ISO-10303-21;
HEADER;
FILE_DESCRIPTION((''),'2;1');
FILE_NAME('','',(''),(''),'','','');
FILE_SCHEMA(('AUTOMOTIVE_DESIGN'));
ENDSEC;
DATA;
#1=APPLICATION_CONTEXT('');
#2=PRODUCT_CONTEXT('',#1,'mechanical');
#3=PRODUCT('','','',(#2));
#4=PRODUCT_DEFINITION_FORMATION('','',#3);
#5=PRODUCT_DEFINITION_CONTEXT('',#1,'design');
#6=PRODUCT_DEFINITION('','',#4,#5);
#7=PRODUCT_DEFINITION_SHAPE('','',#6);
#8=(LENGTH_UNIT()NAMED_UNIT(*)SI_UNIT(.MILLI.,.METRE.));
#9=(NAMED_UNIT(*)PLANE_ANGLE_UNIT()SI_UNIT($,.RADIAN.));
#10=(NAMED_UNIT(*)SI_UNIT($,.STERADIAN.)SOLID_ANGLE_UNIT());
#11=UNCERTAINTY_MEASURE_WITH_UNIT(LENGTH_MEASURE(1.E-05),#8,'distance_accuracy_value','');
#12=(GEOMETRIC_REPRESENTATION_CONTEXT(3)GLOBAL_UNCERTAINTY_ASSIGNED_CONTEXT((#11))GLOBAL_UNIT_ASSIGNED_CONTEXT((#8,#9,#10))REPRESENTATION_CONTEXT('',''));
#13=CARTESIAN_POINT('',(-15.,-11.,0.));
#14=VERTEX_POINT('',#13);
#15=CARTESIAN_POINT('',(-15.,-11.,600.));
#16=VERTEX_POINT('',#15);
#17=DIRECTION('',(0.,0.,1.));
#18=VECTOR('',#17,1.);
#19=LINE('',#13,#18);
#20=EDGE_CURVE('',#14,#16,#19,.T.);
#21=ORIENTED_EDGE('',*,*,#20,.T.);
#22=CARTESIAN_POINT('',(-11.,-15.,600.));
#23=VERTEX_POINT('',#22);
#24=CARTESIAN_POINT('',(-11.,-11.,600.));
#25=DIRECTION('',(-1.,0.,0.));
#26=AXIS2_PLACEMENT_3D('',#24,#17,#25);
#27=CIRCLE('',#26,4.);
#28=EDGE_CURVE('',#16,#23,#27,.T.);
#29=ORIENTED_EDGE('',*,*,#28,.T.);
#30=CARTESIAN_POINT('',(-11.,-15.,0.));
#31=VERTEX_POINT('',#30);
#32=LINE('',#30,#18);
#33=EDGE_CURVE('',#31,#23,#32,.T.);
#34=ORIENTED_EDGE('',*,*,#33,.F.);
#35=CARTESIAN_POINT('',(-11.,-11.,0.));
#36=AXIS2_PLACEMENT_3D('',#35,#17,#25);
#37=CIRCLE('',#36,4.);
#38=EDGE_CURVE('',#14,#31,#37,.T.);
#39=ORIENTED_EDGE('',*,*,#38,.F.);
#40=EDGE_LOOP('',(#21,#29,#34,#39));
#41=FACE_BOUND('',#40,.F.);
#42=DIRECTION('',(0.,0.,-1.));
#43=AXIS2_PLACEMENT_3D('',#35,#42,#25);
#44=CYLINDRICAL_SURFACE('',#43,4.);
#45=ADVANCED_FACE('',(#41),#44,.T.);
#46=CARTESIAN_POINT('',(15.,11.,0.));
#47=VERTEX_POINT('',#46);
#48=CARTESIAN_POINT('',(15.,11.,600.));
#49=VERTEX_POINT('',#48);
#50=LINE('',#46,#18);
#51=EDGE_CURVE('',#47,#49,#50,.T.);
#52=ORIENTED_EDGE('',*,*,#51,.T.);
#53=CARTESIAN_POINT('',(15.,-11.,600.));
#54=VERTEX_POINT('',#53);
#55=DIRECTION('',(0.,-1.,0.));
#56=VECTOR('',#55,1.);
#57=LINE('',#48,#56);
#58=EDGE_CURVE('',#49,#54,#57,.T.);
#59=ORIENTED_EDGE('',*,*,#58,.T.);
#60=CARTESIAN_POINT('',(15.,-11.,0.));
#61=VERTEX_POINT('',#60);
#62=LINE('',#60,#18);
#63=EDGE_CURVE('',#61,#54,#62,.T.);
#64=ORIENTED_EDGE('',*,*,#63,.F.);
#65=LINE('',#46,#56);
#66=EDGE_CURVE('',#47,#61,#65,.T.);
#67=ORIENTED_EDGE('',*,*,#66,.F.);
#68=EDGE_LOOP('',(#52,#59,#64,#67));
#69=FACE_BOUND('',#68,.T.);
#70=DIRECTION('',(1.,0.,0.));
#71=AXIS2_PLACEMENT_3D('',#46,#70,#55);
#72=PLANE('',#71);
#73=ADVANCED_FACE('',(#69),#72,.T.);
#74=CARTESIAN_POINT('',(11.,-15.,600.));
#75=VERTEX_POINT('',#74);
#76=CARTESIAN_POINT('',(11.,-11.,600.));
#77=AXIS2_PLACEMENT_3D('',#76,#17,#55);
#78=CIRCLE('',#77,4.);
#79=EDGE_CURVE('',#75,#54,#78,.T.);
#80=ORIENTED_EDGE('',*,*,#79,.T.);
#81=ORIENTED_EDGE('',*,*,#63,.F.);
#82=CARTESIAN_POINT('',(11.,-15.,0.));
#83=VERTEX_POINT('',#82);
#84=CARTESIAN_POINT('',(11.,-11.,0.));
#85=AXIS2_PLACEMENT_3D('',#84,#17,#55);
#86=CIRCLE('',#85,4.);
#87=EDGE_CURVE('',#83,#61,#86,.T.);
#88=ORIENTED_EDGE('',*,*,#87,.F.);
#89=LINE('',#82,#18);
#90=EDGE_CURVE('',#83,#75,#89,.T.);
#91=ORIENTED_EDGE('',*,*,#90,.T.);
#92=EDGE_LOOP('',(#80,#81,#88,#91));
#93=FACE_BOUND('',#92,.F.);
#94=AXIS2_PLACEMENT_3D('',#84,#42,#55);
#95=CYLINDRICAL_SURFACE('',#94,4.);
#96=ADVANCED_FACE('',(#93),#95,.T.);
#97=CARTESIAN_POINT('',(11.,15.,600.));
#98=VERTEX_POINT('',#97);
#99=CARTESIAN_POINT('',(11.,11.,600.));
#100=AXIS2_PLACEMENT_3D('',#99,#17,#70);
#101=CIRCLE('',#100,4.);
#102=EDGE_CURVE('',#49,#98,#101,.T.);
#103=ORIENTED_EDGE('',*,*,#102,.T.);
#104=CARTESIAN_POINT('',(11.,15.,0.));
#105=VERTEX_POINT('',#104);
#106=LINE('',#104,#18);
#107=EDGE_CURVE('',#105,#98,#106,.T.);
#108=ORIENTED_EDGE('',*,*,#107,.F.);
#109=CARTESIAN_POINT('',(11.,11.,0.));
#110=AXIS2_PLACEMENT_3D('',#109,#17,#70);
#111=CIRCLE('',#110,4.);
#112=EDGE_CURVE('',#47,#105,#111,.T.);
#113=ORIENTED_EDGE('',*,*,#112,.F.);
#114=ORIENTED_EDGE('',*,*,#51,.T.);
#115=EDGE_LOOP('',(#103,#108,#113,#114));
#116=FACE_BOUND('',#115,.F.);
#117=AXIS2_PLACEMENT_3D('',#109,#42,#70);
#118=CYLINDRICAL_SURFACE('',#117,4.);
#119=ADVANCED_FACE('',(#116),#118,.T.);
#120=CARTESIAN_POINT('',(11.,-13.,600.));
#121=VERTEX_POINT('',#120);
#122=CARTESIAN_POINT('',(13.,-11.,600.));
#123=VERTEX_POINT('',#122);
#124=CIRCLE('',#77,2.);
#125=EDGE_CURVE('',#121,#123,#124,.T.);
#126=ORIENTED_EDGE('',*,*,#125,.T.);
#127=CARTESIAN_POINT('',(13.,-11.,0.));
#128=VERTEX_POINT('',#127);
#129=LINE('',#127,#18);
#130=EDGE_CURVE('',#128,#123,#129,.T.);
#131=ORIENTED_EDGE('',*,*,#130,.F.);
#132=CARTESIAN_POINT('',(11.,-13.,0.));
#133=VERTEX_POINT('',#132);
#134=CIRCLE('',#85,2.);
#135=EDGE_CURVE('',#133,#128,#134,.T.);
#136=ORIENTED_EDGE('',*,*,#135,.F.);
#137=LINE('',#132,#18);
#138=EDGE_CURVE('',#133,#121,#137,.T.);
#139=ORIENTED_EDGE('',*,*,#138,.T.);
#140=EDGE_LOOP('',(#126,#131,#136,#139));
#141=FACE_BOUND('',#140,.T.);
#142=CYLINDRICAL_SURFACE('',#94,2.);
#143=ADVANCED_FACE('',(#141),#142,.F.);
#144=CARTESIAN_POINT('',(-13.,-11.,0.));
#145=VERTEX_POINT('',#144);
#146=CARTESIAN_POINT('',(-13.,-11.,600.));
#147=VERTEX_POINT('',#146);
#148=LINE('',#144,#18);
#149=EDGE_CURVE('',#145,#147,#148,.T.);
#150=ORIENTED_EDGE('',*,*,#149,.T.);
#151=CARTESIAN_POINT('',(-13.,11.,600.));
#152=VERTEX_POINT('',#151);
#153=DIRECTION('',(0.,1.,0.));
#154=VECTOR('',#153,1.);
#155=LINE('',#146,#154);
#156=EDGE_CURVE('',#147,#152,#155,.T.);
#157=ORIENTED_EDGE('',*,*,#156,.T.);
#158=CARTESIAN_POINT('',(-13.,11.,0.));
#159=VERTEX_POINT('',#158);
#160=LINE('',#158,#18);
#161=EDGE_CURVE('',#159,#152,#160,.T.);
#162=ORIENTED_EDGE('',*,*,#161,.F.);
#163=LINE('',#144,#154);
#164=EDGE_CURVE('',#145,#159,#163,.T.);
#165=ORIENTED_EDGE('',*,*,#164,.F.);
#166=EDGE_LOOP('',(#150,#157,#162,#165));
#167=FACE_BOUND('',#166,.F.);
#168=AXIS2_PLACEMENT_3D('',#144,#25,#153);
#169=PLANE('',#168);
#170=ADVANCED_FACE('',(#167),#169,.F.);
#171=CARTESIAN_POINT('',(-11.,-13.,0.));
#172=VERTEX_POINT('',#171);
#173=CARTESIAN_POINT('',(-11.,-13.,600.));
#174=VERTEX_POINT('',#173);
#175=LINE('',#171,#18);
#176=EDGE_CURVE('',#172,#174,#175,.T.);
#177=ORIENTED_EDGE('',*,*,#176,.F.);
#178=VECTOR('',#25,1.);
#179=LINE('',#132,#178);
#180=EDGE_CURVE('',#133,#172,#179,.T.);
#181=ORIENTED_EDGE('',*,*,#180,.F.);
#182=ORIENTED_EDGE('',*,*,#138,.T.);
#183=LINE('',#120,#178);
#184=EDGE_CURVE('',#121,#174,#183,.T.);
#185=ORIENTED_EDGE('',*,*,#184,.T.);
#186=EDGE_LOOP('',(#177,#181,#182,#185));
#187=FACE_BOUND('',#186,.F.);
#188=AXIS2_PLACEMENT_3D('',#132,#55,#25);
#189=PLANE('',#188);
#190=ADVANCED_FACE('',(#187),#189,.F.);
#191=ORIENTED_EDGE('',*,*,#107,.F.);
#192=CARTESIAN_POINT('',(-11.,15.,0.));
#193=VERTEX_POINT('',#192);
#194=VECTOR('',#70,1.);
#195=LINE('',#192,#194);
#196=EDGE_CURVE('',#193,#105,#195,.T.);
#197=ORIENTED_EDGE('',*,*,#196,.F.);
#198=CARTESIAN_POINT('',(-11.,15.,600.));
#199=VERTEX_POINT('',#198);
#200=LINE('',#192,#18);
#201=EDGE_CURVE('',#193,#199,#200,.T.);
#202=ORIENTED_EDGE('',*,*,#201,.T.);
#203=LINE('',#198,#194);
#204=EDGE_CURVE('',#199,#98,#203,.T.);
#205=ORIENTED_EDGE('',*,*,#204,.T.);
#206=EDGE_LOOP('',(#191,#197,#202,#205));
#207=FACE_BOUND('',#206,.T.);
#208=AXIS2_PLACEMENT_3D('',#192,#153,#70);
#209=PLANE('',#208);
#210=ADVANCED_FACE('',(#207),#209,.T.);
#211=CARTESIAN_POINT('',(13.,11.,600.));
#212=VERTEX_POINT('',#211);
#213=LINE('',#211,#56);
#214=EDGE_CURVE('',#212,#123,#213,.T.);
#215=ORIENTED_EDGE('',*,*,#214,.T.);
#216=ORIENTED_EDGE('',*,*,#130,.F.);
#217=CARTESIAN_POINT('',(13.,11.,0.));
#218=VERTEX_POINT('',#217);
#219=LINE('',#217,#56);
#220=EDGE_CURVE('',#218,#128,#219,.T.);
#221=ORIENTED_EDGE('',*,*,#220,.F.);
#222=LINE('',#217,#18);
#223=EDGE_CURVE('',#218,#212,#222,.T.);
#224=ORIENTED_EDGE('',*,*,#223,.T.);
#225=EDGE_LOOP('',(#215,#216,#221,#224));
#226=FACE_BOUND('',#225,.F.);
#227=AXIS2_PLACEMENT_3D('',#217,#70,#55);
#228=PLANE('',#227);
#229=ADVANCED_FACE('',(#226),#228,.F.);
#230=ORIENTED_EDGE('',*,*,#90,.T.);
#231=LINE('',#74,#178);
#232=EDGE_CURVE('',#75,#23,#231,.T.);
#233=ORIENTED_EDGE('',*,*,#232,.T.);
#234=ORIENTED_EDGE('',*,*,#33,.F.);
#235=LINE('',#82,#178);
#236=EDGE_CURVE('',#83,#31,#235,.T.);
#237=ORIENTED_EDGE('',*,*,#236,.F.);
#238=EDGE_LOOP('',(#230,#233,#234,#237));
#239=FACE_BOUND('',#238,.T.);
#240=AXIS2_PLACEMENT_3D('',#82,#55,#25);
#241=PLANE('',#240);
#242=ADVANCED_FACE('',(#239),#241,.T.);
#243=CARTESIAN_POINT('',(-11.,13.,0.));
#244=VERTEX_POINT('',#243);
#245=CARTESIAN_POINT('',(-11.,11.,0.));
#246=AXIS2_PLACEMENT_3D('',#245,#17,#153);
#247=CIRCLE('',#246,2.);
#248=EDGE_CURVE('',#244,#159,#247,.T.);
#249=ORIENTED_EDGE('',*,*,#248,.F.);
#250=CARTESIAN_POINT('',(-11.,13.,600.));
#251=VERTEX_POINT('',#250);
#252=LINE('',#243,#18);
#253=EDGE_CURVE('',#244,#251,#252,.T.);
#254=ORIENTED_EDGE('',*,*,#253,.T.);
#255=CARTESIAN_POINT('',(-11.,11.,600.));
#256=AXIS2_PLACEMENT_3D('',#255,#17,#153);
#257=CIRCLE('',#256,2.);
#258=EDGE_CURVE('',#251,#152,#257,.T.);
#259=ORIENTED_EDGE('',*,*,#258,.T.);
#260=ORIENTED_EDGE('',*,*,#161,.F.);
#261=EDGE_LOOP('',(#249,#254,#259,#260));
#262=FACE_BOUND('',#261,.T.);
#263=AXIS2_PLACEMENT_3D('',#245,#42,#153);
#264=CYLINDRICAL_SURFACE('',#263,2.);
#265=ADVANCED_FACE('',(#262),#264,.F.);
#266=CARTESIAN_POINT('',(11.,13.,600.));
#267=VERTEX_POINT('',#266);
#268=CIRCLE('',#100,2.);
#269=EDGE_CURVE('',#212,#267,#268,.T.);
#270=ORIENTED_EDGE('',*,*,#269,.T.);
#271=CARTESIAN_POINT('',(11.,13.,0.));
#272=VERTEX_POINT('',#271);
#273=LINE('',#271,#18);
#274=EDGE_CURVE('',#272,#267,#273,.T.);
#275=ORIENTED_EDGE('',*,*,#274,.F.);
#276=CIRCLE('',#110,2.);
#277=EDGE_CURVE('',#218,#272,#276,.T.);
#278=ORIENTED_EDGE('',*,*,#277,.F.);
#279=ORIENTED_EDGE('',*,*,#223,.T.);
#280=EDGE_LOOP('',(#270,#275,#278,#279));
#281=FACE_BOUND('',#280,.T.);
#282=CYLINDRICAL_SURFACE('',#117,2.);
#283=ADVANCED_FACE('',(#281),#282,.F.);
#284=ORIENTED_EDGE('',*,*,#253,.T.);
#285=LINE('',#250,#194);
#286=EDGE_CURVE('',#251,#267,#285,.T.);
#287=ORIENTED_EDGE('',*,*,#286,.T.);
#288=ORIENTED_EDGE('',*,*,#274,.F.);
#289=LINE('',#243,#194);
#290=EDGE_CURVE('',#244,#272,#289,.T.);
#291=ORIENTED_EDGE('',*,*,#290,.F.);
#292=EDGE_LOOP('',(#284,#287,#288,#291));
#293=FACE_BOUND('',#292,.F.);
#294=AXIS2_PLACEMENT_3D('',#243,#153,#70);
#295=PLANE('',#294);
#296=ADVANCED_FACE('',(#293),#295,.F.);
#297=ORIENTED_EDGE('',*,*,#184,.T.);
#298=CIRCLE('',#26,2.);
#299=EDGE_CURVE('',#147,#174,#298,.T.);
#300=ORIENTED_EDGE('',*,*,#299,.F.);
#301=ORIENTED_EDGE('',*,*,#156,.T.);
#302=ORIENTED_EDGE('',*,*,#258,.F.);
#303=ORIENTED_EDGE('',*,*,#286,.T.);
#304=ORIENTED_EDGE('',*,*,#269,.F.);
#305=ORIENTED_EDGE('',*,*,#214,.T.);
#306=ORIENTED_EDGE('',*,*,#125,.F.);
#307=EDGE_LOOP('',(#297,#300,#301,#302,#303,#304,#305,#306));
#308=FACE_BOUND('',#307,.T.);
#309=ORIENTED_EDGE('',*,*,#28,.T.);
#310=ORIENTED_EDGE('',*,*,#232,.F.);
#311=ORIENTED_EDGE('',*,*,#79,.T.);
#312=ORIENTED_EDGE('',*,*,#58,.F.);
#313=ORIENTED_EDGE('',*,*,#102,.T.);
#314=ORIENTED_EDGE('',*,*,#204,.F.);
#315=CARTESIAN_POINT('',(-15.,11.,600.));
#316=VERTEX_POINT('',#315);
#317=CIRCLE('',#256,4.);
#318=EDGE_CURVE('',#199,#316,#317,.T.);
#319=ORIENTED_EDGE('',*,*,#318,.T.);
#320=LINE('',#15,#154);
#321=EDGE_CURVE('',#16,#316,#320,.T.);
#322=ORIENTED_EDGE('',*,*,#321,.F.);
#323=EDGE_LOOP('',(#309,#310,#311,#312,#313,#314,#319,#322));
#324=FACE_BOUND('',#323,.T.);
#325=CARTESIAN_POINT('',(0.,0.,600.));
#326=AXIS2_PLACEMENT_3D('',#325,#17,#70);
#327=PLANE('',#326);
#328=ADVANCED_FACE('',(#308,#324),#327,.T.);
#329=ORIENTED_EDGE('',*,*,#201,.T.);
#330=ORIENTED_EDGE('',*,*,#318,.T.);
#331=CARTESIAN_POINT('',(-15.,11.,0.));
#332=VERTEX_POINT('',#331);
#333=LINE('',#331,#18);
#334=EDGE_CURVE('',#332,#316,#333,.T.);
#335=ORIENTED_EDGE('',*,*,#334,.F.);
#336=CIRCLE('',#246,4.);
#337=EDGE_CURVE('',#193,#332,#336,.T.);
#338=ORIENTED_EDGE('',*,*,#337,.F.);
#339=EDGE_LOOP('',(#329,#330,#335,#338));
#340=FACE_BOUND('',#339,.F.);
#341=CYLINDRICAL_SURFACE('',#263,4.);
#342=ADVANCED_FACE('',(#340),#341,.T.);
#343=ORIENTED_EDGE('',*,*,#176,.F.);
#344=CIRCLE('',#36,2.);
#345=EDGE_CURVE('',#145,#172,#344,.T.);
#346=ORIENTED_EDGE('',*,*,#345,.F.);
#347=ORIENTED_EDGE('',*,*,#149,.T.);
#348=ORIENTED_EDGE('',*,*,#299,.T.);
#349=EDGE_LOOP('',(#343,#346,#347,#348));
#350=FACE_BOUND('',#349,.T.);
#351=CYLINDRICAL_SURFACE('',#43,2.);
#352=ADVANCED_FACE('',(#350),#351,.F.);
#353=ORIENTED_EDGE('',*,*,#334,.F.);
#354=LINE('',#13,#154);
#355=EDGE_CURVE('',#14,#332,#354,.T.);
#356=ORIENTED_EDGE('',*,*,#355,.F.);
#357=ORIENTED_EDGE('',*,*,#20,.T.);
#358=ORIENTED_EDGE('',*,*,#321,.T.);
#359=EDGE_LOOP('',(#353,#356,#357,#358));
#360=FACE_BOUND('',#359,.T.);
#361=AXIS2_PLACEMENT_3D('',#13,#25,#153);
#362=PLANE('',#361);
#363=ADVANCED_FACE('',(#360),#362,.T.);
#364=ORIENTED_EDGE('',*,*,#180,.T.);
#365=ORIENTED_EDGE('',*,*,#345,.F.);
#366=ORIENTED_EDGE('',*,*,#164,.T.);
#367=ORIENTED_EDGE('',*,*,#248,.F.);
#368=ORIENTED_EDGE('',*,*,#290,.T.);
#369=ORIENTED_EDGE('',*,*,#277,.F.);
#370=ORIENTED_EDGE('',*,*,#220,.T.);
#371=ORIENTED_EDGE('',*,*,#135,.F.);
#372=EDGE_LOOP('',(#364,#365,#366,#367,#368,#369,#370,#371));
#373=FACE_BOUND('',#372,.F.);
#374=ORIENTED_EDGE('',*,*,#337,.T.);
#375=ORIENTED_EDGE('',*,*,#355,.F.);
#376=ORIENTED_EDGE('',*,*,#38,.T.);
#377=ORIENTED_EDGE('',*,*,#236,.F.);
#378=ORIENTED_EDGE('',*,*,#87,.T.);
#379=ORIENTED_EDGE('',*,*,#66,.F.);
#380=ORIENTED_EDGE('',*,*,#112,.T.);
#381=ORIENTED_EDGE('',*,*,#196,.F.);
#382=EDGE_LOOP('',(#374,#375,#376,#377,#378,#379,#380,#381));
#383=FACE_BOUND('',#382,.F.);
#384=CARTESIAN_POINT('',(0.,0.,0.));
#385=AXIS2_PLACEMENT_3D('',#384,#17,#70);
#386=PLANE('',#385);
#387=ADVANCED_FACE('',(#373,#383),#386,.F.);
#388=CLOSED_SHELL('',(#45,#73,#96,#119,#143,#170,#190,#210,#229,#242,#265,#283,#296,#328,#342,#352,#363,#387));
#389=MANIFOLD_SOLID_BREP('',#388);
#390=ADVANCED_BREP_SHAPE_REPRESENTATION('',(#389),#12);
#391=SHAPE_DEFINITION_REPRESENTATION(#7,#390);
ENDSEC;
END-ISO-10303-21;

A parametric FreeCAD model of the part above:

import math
import FreeCAD as App
import Part
import Sketcher
Q = App.Units.Quantity

doc = App.newDocument("Part")
body = doc.addObject("PartDesign::Body", "Body")

# Sketch on XY plane
sketch1 = body.newObject("Sketcher::SketchObject", "Sketch")
sketch1.AttachmentSupport = (doc.getObject("XY_Plane"), [""])
sketch1.MapMode = "FlatFace"
sketch1.addGeometry([
    Part.LineSegment(App.Vector(-15, 11, 0), App.Vector(-15, -11, 0)),  # 0
    Part.ArcOfCircle(Part.Circle(App.Vector(-11, -11, 0), App.Vector(0, 0, 1), 4), math.radians(180), math.radians(270)),  # 1
    Part.LineSegment(App.Vector(-11, -15, 0), App.Vector(11, -15, 0)),  # 2
    Part.ArcOfCircle(Part.Circle(App.Vector(11, -11, 0), App.Vector(0, 0, 1), 4), math.radians(-90), math.radians(0)),  # 3
    Part.LineSegment(App.Vector(15, -11, 0), App.Vector(15, 11, 0)),  # 4
    Part.ArcOfCircle(Part.Circle(App.Vector(11, 11, 0), App.Vector(0, 0, 1), 4), math.radians(0), math.radians(90)),  # 5
    Part.LineSegment(App.Vector(11, 15, 0), App.Vector(-11, 15, 0)),  # 6
    Part.ArcOfCircle(Part.Circle(App.Vector(-11, 11, 0), App.Vector(0, 0, 1), 4), math.radians(90), math.radians(180)),  # 7
    Part.ArcOfCircle(Part.Circle(App.Vector(-11, 11, 0), App.Vector(0, 0, 1), 2), math.radians(90), math.radians(180)),  # 8
    Part.LineSegment(App.Vector(-11, 13, 0), App.Vector(11, 13, 0)),  # 9
    Part.ArcOfCircle(Part.Circle(App.Vector(11, 11, 0), App.Vector(0, 0, 1), 2), math.radians(0), math.radians(90)),  # 10
    Part.LineSegment(App.Vector(13, 11, 0), App.Vector(13, -11, 0)),  # 11
    Part.ArcOfCircle(Part.Circle(App.Vector(11, -11, 0), App.Vector(0, 0, 1), 2), math.radians(-90), math.radians(0)),  # 12
    Part.LineSegment(App.Vector(11, -13, 0), App.Vector(-11, -13, 0)),  # 13
    Part.ArcOfCircle(Part.Circle(App.Vector(-11, -11, 0), App.Vector(0, 0, 1), 2), math.radians(180), math.radians(270)),  # 14
    Part.LineSegment(App.Vector(-13, -11, 0), App.Vector(-13, 11, 0)),  # 15
], False)
sketch1.addConstraint([
    Sketcher.Constraint("Tangent", 0, 2, 1, 1),
    Sketcher.Constraint("Tangent", 1, 2, 2, 1),
    Sketcher.Constraint("Tangent", 2, 2, 3, 1),
    Sketcher.Constraint("Tangent", 3, 2, 4, 1),
    Sketcher.Constraint("Tangent", 4, 2, 5, 1),
    Sketcher.Constraint("Tangent", 5, 2, 6, 1),
    Sketcher.Constraint("Tangent", 6, 2, 7, 1),
    Sketcher.Constraint("Tangent", 7, 2, 0, 1),
    Sketcher.Constraint("Tangent", 8, 1, 9, 1),
    Sketcher.Constraint("Tangent", 9, 2, 10, 2),
    Sketcher.Constraint("Tangent", 10, 1, 11, 1),
    Sketcher.Constraint("Tangent", 11, 2, 12, 2),
    Sketcher.Constraint("Tangent", 12, 1, 13, 1),
    Sketcher.Constraint("Tangent", 13, 2, 14, 2),
    Sketcher.Constraint("Tangent", 14, 1, 15, 1),
    Sketcher.Constraint("Tangent", 15, 2, 8, 2),
    Sketcher.Constraint("Vertical", 0),
    Sketcher.Constraint("Horizontal", 2),
    Sketcher.Constraint("Vertical", 4),
    Sketcher.Constraint("Horizontal", 6),
    Sketcher.Constraint("Horizontal", 9),
    Sketcher.Constraint("Vertical", 11),
    Sketcher.Constraint("Horizontal", 13),
    Sketcher.Constraint("Vertical", 15),
    Sketcher.Constraint("Coincident", 8, 3, 7, 3),
    Sketcher.Constraint("Coincident", 10, 3, 5, 3),
    Sketcher.Constraint("Coincident", 12, 3, 3, 3),
    Sketcher.Constraint("Equal", 1, 3),
    Sketcher.Constraint("Equal", 3, 5),
    Sketcher.Constraint("Equal", 5, 7),
    Sketcher.Constraint("Equal", 12, 14),
    Sketcher.Constraint("Symmetric", 1, 3, 5, 3, -1, 1),
    Sketcher.Constraint("Equal", 13, 0),
    Sketcher.Constraint("Radius", 1, Q("4 mm")),
    Sketcher.Constraint("Radius", 8, Q("2 mm")),
    Sketcher.Constraint("DistanceX", 0, 2, -1, 1, Q("15 mm")),
])
pad1 = body.newObject("PartDesign::Pad", "Pad")
pad1.Profile = sketch1
pad1.Length = 600

doc.recompute()
